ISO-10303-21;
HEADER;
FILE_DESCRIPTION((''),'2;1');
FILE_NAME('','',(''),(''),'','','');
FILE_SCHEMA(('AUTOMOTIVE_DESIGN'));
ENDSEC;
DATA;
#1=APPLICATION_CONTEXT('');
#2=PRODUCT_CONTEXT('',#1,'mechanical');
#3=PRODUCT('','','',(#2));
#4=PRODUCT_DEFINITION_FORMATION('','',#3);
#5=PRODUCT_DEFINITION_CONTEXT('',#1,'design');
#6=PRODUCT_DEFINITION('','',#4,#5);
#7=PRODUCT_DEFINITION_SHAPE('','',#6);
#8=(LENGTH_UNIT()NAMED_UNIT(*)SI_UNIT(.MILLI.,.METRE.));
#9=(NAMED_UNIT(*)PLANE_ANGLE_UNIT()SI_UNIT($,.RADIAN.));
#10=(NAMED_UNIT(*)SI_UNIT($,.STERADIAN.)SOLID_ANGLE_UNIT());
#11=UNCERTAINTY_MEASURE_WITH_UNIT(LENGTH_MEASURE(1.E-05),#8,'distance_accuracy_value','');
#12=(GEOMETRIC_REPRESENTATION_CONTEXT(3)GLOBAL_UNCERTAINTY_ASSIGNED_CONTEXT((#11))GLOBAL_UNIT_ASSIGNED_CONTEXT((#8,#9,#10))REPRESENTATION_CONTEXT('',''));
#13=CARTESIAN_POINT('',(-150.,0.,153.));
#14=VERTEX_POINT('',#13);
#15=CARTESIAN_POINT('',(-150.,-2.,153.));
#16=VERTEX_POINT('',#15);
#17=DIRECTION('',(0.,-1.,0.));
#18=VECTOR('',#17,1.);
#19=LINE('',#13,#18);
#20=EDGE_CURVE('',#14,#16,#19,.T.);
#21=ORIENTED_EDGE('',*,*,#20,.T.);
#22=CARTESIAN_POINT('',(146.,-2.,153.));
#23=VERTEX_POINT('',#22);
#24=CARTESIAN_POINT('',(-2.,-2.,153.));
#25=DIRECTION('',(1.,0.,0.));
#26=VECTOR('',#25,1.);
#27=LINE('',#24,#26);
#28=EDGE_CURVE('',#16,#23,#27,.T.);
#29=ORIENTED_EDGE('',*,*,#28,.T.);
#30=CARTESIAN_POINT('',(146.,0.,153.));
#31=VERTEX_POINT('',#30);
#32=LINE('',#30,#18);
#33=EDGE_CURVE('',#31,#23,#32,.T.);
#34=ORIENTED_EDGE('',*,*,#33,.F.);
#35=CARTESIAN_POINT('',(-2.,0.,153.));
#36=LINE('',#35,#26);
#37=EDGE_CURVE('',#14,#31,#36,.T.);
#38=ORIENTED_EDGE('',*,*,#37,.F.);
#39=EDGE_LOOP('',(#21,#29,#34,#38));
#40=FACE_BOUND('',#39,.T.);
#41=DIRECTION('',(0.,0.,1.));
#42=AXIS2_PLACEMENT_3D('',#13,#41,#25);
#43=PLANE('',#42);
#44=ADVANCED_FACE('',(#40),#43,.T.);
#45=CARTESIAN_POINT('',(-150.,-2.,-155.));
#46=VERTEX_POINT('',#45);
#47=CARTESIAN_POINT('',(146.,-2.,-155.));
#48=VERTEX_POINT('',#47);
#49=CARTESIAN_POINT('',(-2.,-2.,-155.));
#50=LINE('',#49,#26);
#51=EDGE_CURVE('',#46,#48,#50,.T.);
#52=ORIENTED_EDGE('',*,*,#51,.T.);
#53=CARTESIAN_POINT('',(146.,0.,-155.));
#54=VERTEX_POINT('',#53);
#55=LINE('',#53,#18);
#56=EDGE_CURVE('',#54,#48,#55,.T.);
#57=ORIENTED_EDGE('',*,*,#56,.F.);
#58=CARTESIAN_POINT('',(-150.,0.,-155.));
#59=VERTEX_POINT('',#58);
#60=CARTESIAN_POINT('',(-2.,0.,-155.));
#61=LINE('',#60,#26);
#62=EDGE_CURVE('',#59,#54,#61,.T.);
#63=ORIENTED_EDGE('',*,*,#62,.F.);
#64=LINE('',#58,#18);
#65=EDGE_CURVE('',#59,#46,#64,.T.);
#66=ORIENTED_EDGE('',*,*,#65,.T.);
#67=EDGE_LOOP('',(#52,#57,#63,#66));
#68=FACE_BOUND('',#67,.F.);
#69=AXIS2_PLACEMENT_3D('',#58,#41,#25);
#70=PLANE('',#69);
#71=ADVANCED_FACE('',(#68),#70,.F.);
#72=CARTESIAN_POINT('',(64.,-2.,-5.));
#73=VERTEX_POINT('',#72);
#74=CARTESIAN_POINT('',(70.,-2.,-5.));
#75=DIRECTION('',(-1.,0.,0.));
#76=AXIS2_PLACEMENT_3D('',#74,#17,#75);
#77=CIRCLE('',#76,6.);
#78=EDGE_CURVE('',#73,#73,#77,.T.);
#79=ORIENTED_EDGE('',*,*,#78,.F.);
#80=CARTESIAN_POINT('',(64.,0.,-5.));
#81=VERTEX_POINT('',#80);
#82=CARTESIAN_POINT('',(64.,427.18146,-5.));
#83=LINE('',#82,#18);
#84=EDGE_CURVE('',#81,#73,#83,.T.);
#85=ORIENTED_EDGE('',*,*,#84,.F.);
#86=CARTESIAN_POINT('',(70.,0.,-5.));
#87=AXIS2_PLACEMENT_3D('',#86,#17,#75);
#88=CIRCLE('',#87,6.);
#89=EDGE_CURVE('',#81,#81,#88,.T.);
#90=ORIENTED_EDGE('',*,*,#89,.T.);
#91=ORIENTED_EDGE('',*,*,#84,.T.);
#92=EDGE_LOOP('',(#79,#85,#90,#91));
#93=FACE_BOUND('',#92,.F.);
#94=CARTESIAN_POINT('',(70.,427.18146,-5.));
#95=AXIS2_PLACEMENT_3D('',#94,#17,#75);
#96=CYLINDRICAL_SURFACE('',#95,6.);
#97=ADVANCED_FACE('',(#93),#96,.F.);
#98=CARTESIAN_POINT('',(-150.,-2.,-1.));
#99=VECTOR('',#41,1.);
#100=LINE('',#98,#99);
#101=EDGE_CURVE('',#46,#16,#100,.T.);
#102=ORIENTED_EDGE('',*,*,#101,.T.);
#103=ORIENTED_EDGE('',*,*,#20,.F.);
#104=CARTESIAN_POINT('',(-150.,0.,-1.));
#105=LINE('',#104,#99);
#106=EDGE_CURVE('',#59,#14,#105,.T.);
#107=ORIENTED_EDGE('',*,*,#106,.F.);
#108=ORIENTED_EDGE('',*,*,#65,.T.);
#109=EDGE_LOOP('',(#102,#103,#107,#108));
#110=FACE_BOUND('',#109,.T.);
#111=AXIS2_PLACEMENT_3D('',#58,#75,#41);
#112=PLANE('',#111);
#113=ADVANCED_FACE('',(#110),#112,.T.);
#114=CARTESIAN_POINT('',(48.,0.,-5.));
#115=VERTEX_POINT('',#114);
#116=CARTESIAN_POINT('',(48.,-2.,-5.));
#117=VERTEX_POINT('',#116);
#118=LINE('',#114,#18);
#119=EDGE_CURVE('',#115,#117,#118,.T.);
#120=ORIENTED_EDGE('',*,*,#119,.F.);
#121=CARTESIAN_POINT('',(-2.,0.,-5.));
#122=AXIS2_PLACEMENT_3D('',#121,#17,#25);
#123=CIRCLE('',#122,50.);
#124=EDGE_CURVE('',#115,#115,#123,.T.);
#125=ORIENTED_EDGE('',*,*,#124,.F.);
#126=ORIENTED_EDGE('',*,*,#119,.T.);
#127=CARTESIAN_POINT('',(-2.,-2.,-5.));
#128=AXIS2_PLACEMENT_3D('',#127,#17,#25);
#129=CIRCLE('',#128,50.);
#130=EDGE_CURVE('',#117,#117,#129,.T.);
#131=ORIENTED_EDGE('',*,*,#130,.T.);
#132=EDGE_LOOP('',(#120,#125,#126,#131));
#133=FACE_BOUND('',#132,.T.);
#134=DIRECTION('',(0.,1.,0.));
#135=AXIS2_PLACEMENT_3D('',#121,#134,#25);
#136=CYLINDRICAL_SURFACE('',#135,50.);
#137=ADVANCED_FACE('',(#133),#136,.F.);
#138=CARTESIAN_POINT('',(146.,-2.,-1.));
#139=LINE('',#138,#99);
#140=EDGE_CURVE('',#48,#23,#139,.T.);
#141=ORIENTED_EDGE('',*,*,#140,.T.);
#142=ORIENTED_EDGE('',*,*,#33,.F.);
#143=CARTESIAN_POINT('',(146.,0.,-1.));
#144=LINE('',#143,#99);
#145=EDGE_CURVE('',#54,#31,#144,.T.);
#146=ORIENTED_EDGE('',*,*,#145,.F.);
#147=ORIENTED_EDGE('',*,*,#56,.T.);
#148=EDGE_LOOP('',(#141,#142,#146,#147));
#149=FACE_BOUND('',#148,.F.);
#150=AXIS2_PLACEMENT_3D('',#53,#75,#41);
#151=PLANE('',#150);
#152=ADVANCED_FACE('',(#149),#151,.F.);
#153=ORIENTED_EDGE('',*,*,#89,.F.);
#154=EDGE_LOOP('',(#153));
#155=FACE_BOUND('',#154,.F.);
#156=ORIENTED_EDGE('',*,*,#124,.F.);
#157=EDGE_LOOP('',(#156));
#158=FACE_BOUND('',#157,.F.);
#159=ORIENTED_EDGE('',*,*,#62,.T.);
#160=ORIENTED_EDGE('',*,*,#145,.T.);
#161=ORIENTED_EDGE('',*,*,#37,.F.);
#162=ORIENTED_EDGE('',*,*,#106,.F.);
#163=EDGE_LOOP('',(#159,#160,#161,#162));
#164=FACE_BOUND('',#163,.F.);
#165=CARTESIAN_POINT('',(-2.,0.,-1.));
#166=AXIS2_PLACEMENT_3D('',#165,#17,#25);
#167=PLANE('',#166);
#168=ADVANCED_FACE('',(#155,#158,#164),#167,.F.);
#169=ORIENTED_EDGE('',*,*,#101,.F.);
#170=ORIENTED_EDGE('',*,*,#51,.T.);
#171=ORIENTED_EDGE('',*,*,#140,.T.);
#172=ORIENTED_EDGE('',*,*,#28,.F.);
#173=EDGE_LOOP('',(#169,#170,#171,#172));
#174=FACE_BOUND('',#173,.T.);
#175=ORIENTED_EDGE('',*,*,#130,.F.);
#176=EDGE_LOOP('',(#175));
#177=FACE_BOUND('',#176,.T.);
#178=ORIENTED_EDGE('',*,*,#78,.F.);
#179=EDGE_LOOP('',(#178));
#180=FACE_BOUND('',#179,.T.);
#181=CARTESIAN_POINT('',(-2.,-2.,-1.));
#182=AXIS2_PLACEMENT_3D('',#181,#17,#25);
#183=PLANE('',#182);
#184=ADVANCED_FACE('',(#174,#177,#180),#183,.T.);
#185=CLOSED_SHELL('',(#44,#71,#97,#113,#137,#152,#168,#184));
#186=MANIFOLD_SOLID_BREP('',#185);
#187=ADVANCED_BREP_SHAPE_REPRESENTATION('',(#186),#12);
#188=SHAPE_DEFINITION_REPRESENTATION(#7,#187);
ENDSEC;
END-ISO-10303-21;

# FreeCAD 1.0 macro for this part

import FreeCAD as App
import Part
import Sketcher

V = App.Vector
Q = App.Units.Quantity


def add_polygon(sketch, points):
    """Adds a closed chain of lines whose ends are joined by coincident constraints."""
    first, n = sketch.GeometryCount, len(points)
    for a, b in zip(points, points[1:] + points[:1]):
        sketch.addGeometry(Part.LineSegment(App.Vector(*a, 0), App.Vector(*b, 0)), False)
    for i in range(n):
        sketch.addConstraint(Sketcher.Constraint("Coincident", first + i, 2, first + (i + 1) % n, 1))

doc = App.newDocument("Part")
params = doc.addObject("Spreadsheet::Sheet", "Params")
for row, (alias, value) in enumerate([
    ("sketch1_diameter", "100 mm"),
    ("sketch1_width", "296 mm"),
    ("sketch1_height", "308 mm"),
    ("pad1_length", "2 mm"),
    ("sketch2_diameter", "12 mm"),
    ("hole_diameter", "12 mm"),
], start=1):
    params.set(f"A{row}", alias)
    params.set(f"B{row}", "=" + value)
    params.setAlias(f"B{row}", alias)

body = doc.addObject("PartDesign::Body", "Body")

sketch1 = body.newObject("Sketcher::SketchObject", "Sketch")
sketch1.AttachmentSupport = (doc.getObject("XZ_Plane"), [""])
sketch1.MapMode = "FlatFace"
add_polygon(sketch1, [(-150, 153), (-150, -155), (146, -155), (146, 153)])
sketch1.addGeometry(Part.Circle(V(-2, -5, 0), V(0, 0, 1), 50), False)
sketch1.addConstraint(Sketcher.Constraint("Vertical", 0))
sketch1.addConstraint(Sketcher.Constraint("Horizontal", 1))
sketch1.addConstraint(Sketcher.Constraint("Vertical", 2))
sketch1.addConstraint(Sketcher.Constraint("Horizontal", 3))
sketch1.addConstraint(Sketcher.Constraint("Diameter", 4, Q("100 mm")))
sketch1.addConstraint(Sketcher.Constraint("DistanceX", 1, 1, 1, 2, Q("296 mm")))
sketch1.addConstraint(Sketcher.Constraint("DistanceY", 0, 2, 0, 1, Q("308 mm")))
sketch1.addConstraint(Sketcher.Constraint("DistanceX", 4, 3, -1, 1, Q("2 mm")))
sketch1.addConstraint(Sketcher.Constraint("DistanceY", 4, 3, -1, 1, Q("5 mm")))
sketch1.addConstraint(Sketcher.Constraint("DistanceX", 0, 2, -1, 1, Q("150 mm")))
sketch1.addConstraint(Sketcher.Constraint("DistanceY", 0, 2, -1, 1, Q("155 mm")))
sketch1.setExpression("Constraints[8]", "Params.sketch1_diameter")
sketch1.setExpression("Constraints[9]", "Params.sketch1_width")
sketch1.setExpression("Constraints[10]", "Params.sketch1_height")
pad1 = body.newObject("PartDesign::Pad", "Pad")
pad1.Profile = sketch1
pad1.setExpression("Length", "Params.pad1_length")

sketch2 = body.newObject("Sketcher::SketchObject", "Sketch001")
sketch2.AttachmentSupport = (doc.getObject("XZ_Plane"), [""])
sketch2.MapMode = "FlatFace"
sketch2.addGeometry(Part.Circle(V(70, -5, 0), V(0, 0, 1), 6), False)
sketch2.addConstraint(Sketcher.Constraint("Diameter", 0, Q("12 mm")))
sketch2.addConstraint(Sketcher.Constraint("DistanceX", -1, 1, 0, 3, Q("70 mm")))
sketch2.addConstraint(Sketcher.Constraint("DistanceY", 0, 3, -1, 1, Q("5 mm")))
sketch2.setExpression("Constraints[0]", "Params.sketch2_diameter")
doc.recompute()
hole = body.newObject("PartDesign::Hole", "Hole")
hole.Profile = sketch2
hole.ThreadType = "None"
hole.setExpression("Diameter", "Params.hole_diameter")
hole.DepthType = "ThroughAll"
hole.Reversed = True

doc.recompute()
